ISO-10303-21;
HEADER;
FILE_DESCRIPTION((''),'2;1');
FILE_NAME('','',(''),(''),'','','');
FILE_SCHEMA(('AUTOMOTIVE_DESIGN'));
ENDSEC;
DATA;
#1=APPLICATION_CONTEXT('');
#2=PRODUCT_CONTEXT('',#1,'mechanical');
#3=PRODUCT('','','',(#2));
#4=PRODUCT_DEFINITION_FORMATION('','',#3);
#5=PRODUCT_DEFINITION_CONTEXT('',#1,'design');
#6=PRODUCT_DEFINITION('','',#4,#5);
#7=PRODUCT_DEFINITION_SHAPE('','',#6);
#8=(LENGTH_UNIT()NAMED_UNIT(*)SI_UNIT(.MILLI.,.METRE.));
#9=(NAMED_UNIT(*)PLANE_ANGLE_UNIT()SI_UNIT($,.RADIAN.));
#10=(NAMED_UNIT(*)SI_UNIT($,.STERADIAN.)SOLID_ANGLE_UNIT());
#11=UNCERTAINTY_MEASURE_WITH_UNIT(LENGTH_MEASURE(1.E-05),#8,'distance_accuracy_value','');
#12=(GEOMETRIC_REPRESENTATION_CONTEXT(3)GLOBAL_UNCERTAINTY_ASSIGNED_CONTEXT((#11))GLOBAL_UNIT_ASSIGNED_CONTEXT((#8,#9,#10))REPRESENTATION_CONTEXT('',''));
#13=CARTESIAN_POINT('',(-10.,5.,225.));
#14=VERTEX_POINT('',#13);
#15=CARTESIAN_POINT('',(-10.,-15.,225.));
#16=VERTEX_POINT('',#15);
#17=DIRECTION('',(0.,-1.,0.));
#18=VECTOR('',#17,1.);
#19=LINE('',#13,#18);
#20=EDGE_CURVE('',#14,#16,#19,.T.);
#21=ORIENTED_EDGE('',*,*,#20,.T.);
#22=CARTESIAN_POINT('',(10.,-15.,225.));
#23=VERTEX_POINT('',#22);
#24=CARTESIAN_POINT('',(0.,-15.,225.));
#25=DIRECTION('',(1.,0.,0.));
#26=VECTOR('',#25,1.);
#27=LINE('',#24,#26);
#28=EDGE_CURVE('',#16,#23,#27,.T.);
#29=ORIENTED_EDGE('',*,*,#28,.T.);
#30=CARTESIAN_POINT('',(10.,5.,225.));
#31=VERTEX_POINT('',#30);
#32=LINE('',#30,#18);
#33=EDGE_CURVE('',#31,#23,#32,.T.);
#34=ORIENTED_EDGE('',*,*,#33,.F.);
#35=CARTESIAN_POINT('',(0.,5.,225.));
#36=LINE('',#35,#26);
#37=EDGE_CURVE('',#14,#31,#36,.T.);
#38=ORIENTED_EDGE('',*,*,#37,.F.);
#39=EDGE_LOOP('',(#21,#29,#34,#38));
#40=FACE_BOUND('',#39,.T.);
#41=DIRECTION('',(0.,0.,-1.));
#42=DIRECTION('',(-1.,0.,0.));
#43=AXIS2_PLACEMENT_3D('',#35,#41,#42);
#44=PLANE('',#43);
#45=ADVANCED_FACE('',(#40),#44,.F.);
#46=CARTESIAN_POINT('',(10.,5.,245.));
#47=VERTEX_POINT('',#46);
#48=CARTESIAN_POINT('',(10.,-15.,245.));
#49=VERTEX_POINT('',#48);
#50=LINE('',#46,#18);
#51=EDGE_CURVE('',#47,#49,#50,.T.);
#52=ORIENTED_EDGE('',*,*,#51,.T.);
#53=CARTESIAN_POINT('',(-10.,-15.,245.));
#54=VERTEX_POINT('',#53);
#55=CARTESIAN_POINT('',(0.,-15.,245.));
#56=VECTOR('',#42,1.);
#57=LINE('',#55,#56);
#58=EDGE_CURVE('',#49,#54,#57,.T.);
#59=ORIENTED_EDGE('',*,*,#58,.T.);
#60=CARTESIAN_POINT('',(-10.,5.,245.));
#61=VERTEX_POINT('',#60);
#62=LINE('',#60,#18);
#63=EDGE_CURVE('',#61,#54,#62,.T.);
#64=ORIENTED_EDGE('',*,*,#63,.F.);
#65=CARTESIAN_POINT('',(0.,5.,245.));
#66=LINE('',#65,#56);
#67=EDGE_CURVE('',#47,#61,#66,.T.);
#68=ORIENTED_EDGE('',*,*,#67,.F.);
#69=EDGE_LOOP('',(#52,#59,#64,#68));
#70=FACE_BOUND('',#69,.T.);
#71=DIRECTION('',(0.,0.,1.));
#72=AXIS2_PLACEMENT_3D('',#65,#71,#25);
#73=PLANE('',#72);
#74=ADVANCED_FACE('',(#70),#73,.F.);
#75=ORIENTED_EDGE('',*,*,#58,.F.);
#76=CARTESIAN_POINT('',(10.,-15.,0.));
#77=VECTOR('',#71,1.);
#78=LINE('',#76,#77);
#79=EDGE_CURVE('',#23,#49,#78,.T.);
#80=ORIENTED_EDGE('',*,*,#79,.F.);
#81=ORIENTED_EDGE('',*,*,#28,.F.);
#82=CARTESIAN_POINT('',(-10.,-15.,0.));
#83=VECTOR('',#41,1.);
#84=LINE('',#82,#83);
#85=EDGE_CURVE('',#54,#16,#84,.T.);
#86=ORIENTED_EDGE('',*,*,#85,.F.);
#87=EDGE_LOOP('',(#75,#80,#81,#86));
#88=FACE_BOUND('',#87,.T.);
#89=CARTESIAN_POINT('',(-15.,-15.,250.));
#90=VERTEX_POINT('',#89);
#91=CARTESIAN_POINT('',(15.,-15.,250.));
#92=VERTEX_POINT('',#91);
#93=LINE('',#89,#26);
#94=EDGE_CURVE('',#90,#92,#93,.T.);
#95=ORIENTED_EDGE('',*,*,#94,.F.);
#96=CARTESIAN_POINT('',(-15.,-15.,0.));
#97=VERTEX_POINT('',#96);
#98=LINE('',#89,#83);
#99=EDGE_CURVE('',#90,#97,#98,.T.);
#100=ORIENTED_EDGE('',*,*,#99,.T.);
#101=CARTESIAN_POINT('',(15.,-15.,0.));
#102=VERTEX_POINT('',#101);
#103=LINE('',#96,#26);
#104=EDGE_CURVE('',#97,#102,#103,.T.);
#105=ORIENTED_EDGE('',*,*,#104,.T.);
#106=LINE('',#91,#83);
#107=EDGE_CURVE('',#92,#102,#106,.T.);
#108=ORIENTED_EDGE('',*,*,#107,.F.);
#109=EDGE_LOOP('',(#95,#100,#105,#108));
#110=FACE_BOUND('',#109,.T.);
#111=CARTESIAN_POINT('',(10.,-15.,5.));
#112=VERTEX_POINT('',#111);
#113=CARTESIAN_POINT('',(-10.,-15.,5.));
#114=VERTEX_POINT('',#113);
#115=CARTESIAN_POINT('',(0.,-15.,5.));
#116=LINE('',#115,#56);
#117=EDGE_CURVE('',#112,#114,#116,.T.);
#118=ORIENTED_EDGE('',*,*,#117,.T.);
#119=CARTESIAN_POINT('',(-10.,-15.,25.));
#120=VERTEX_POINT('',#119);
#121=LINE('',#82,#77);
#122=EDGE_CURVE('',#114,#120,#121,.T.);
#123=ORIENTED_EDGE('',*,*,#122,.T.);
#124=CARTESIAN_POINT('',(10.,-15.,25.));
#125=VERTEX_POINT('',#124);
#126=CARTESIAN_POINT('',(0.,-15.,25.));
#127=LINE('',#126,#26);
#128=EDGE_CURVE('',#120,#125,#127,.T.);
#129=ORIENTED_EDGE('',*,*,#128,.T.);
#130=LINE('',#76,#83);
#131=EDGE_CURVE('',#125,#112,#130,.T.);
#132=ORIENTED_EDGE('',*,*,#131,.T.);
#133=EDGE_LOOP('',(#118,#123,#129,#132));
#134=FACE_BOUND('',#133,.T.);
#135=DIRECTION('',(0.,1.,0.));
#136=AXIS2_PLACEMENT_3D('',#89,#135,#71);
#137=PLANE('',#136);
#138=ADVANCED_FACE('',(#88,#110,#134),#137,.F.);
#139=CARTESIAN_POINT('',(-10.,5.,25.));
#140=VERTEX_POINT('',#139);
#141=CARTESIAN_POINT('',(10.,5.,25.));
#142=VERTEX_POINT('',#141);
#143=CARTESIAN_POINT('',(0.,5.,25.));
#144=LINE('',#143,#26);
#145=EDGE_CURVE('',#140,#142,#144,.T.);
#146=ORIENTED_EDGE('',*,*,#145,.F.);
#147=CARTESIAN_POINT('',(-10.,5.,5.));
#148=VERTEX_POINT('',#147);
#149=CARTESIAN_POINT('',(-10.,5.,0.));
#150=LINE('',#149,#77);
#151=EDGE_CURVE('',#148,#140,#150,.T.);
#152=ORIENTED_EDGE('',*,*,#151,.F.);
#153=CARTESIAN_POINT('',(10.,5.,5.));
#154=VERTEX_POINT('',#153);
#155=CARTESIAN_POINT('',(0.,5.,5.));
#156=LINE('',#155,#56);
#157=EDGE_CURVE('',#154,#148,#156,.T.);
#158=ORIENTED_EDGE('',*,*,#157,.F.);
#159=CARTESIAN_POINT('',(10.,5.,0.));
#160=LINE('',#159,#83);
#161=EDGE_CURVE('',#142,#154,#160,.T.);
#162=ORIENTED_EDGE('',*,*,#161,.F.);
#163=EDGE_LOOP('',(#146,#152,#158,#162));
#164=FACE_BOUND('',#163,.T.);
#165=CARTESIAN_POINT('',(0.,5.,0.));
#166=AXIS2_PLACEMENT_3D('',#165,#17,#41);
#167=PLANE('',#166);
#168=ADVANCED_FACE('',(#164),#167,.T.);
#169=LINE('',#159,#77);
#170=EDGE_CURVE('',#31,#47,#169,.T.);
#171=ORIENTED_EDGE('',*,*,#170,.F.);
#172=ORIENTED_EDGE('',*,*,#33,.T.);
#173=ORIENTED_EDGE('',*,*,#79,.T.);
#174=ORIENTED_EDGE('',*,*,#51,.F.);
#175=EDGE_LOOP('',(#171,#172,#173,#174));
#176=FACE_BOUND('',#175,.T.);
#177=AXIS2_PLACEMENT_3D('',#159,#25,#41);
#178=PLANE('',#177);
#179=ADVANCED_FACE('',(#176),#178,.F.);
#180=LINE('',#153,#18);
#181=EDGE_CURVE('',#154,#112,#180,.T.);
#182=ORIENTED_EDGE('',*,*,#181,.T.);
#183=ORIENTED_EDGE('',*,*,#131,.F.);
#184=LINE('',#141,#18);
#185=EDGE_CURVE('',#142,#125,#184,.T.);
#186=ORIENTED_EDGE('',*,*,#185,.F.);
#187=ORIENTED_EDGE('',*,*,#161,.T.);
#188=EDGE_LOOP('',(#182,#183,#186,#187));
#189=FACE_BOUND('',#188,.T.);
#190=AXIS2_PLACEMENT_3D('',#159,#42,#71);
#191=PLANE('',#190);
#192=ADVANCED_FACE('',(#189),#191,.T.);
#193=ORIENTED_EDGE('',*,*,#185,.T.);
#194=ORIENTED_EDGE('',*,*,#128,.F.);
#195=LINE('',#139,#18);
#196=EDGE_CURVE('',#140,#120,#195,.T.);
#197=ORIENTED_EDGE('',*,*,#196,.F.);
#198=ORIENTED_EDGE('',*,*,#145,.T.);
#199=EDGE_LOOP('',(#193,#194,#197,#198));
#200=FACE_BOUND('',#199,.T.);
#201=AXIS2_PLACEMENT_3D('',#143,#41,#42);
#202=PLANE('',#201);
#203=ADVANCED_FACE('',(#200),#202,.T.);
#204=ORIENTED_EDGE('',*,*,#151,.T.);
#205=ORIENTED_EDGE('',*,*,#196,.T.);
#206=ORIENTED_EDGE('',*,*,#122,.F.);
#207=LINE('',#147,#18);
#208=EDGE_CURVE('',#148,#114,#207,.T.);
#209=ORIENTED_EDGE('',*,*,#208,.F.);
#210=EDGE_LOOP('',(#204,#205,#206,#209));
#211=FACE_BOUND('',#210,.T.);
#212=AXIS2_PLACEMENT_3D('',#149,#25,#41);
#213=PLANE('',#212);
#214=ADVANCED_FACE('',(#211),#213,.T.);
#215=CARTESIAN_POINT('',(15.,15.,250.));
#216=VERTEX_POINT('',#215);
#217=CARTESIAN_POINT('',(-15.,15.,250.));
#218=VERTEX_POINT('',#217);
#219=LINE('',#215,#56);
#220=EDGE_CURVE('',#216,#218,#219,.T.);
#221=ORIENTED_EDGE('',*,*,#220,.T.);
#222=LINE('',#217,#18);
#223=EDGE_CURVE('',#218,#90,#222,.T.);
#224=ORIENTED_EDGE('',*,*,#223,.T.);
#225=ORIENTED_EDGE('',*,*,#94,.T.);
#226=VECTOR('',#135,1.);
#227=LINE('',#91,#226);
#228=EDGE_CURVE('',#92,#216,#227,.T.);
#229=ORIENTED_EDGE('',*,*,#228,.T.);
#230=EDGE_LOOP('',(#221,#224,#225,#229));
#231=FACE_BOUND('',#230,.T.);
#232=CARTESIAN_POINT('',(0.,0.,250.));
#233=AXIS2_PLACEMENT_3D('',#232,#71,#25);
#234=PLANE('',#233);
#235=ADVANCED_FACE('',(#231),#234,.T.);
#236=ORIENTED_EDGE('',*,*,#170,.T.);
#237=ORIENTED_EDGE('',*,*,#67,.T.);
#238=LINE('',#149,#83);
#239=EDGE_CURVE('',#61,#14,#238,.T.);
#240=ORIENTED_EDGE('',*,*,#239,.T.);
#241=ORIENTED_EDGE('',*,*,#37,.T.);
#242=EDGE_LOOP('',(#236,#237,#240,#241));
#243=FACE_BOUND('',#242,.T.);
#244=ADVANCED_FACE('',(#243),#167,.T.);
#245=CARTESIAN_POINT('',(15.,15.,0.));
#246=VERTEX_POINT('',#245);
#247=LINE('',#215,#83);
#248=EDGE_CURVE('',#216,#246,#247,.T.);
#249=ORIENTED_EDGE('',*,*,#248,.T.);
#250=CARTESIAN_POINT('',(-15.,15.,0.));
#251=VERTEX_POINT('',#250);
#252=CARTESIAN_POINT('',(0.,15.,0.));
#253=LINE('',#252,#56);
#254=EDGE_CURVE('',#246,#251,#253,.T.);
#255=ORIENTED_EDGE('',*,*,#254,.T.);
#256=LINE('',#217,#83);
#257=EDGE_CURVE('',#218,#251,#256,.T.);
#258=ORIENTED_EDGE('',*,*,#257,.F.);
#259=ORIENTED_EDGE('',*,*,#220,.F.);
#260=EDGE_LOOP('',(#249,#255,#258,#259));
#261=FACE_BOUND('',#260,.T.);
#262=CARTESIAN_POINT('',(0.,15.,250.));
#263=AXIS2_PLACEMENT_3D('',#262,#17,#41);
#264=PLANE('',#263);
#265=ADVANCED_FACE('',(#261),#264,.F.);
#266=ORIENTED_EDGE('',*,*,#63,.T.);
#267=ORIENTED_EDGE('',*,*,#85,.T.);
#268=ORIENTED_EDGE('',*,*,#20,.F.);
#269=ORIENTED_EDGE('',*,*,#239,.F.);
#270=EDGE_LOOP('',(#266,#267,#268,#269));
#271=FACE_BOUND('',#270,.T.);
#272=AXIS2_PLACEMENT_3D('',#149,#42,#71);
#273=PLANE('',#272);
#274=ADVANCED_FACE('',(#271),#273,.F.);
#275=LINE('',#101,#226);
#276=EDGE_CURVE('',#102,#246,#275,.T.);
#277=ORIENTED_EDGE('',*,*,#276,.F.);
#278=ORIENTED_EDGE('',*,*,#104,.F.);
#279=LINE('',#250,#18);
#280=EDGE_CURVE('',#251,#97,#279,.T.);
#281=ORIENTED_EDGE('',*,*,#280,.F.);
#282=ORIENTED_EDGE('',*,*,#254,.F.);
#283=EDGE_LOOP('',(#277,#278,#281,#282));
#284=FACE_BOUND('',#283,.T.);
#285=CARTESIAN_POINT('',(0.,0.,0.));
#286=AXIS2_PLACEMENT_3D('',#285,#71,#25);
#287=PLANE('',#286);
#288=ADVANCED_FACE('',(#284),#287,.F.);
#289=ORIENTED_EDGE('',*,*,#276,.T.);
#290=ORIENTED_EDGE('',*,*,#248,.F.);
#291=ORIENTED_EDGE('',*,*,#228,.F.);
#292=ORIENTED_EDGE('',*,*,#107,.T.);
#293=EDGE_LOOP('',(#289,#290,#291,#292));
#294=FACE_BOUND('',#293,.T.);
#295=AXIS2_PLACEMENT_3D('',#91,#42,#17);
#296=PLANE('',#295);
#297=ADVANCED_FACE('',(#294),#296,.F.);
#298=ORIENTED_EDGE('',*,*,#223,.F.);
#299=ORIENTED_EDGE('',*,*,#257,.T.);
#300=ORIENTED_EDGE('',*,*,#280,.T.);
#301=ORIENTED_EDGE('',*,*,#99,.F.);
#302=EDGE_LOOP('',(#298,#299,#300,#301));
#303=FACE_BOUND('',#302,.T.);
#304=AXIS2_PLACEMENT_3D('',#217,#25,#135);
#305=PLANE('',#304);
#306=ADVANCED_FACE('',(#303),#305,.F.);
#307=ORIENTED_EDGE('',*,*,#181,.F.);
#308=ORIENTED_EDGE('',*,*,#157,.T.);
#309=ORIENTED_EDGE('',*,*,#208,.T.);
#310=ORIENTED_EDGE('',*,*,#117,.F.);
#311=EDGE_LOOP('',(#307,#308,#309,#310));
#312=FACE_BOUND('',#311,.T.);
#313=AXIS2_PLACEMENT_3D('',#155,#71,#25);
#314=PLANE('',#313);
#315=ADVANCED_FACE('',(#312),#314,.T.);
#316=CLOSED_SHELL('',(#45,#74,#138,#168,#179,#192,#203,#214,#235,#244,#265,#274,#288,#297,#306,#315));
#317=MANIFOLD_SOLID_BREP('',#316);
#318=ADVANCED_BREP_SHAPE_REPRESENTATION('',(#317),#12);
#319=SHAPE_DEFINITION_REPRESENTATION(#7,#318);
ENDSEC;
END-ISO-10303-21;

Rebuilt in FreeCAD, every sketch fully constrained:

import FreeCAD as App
import Part
import Sketcher

V = App.Vector


def add_polygon(sketch, points):
    """Adds a closed chain of lines whose ends are joined by coincident constraints."""
    first, n = sketch.GeometryCount, len(points)
    for a, b in zip(points, points[1:] + points[:1]):
        sketch.addGeometry(Part.LineSegment(App.Vector(*a, 0), App.Vector(*b, 0)), False)
    for i in range(n):
        sketch.addConstraint(Sketcher.Constraint("Coincident", first + i, 2, first + (i + 1) % n, 1))

doc = App.newDocument("Part")
body = doc.addObject("PartDesign::Body", "Body")

sketch1 = doc.addObject("Sketcher::SketchObject", "Sketch")
body.addObject(sketch1)
sketch1.AttachmentSupport = (doc.XY_Plane, [""])
sketch1.MapMode = "FlatFace"
add_polygon(sketch1, [(-15, 15), (-15, -15), (15, -15), (15, 15)])
sketch1.addConstraint([
    Sketcher.Constraint("Vertical", 0),
    Sketcher.Constraint("Horizontal", 1),
    Sketcher.Constraint("Vertical", 2),
    Sketcher.Constraint("Horizontal", 3),
    Sketcher.Constraint("Symmetric", 0, 2, 2, 2, -1, 1),
    Sketcher.Constraint("Equal", 3, 0),
    Sketcher.Constraint("DistanceX", 1, 1, 1, 2, 30.0),
])
pad1 = doc.addObject("PartDesign::Pad", "Pad")
body.addObject(pad1)
pad1.Profile = sketch1
pad1.Length = 250

sketch2 = doc.addObject("Sketcher::SketchObject", "Sketch001")
body.addObject(sketch2)
sketch2.AttachmentSupport = (doc.XZ_Plane, [""])
sketch2.MapMode = "FlatFace"
sketch2.AttachmentOffset = App.Placement(V(0, 0, 15), App.Rotation())
add_polygon(sketch2, [(10, 225), (10, 245), (-10, 245), (-10, 225)])
add_polygon(sketch2, [(10, 5), (10, 25), (-10, 25), (-10, 5)])
sketch2.addConstraint([
    Sketcher.Constraint("Vertical", 0),
    Sketcher.Constraint("Horizontal", 1),
    Sketcher.Constraint("Vertical", 2),
    Sketcher.Constraint("Horizontal", 3),
    Sketcher.Constraint("Vertical", 4),
    Sketcher.Constraint("Horizontal", 5),
    Sketcher.Constraint("Vertical", 6),
    Sketcher.Constraint("Horizontal", 7),
    Sketcher.Constraint("Vertical", 3, 2, 4, 2),
    Sketcher.Constraint("Vertical", 2, 2, 5, 2),
    Sketcher.Constraint("Equal", 7, 0),
    Sketcher.Constraint("Equal", 2, 4),
    Sketcher.Constraint("DistanceX", 1, 2, 1, 1, 20.0),
    Sketcher.Constraint("DistanceX", -1, 1, 0, 2, 10.0),
    Sketcher.Constraint("DistanceY", -1, 1, 0, 2, 245.0),
    Sketcher.Constraint("DistanceY", -1, 1, 4, 2, 25.0),
])
pocket1 = doc.addObject("PartDesign::Pocket", "Pocket")
body.addObject(pocket1)
pocket1.Profile = sketch2
pocket1.Length = 20

doc.recompute()
